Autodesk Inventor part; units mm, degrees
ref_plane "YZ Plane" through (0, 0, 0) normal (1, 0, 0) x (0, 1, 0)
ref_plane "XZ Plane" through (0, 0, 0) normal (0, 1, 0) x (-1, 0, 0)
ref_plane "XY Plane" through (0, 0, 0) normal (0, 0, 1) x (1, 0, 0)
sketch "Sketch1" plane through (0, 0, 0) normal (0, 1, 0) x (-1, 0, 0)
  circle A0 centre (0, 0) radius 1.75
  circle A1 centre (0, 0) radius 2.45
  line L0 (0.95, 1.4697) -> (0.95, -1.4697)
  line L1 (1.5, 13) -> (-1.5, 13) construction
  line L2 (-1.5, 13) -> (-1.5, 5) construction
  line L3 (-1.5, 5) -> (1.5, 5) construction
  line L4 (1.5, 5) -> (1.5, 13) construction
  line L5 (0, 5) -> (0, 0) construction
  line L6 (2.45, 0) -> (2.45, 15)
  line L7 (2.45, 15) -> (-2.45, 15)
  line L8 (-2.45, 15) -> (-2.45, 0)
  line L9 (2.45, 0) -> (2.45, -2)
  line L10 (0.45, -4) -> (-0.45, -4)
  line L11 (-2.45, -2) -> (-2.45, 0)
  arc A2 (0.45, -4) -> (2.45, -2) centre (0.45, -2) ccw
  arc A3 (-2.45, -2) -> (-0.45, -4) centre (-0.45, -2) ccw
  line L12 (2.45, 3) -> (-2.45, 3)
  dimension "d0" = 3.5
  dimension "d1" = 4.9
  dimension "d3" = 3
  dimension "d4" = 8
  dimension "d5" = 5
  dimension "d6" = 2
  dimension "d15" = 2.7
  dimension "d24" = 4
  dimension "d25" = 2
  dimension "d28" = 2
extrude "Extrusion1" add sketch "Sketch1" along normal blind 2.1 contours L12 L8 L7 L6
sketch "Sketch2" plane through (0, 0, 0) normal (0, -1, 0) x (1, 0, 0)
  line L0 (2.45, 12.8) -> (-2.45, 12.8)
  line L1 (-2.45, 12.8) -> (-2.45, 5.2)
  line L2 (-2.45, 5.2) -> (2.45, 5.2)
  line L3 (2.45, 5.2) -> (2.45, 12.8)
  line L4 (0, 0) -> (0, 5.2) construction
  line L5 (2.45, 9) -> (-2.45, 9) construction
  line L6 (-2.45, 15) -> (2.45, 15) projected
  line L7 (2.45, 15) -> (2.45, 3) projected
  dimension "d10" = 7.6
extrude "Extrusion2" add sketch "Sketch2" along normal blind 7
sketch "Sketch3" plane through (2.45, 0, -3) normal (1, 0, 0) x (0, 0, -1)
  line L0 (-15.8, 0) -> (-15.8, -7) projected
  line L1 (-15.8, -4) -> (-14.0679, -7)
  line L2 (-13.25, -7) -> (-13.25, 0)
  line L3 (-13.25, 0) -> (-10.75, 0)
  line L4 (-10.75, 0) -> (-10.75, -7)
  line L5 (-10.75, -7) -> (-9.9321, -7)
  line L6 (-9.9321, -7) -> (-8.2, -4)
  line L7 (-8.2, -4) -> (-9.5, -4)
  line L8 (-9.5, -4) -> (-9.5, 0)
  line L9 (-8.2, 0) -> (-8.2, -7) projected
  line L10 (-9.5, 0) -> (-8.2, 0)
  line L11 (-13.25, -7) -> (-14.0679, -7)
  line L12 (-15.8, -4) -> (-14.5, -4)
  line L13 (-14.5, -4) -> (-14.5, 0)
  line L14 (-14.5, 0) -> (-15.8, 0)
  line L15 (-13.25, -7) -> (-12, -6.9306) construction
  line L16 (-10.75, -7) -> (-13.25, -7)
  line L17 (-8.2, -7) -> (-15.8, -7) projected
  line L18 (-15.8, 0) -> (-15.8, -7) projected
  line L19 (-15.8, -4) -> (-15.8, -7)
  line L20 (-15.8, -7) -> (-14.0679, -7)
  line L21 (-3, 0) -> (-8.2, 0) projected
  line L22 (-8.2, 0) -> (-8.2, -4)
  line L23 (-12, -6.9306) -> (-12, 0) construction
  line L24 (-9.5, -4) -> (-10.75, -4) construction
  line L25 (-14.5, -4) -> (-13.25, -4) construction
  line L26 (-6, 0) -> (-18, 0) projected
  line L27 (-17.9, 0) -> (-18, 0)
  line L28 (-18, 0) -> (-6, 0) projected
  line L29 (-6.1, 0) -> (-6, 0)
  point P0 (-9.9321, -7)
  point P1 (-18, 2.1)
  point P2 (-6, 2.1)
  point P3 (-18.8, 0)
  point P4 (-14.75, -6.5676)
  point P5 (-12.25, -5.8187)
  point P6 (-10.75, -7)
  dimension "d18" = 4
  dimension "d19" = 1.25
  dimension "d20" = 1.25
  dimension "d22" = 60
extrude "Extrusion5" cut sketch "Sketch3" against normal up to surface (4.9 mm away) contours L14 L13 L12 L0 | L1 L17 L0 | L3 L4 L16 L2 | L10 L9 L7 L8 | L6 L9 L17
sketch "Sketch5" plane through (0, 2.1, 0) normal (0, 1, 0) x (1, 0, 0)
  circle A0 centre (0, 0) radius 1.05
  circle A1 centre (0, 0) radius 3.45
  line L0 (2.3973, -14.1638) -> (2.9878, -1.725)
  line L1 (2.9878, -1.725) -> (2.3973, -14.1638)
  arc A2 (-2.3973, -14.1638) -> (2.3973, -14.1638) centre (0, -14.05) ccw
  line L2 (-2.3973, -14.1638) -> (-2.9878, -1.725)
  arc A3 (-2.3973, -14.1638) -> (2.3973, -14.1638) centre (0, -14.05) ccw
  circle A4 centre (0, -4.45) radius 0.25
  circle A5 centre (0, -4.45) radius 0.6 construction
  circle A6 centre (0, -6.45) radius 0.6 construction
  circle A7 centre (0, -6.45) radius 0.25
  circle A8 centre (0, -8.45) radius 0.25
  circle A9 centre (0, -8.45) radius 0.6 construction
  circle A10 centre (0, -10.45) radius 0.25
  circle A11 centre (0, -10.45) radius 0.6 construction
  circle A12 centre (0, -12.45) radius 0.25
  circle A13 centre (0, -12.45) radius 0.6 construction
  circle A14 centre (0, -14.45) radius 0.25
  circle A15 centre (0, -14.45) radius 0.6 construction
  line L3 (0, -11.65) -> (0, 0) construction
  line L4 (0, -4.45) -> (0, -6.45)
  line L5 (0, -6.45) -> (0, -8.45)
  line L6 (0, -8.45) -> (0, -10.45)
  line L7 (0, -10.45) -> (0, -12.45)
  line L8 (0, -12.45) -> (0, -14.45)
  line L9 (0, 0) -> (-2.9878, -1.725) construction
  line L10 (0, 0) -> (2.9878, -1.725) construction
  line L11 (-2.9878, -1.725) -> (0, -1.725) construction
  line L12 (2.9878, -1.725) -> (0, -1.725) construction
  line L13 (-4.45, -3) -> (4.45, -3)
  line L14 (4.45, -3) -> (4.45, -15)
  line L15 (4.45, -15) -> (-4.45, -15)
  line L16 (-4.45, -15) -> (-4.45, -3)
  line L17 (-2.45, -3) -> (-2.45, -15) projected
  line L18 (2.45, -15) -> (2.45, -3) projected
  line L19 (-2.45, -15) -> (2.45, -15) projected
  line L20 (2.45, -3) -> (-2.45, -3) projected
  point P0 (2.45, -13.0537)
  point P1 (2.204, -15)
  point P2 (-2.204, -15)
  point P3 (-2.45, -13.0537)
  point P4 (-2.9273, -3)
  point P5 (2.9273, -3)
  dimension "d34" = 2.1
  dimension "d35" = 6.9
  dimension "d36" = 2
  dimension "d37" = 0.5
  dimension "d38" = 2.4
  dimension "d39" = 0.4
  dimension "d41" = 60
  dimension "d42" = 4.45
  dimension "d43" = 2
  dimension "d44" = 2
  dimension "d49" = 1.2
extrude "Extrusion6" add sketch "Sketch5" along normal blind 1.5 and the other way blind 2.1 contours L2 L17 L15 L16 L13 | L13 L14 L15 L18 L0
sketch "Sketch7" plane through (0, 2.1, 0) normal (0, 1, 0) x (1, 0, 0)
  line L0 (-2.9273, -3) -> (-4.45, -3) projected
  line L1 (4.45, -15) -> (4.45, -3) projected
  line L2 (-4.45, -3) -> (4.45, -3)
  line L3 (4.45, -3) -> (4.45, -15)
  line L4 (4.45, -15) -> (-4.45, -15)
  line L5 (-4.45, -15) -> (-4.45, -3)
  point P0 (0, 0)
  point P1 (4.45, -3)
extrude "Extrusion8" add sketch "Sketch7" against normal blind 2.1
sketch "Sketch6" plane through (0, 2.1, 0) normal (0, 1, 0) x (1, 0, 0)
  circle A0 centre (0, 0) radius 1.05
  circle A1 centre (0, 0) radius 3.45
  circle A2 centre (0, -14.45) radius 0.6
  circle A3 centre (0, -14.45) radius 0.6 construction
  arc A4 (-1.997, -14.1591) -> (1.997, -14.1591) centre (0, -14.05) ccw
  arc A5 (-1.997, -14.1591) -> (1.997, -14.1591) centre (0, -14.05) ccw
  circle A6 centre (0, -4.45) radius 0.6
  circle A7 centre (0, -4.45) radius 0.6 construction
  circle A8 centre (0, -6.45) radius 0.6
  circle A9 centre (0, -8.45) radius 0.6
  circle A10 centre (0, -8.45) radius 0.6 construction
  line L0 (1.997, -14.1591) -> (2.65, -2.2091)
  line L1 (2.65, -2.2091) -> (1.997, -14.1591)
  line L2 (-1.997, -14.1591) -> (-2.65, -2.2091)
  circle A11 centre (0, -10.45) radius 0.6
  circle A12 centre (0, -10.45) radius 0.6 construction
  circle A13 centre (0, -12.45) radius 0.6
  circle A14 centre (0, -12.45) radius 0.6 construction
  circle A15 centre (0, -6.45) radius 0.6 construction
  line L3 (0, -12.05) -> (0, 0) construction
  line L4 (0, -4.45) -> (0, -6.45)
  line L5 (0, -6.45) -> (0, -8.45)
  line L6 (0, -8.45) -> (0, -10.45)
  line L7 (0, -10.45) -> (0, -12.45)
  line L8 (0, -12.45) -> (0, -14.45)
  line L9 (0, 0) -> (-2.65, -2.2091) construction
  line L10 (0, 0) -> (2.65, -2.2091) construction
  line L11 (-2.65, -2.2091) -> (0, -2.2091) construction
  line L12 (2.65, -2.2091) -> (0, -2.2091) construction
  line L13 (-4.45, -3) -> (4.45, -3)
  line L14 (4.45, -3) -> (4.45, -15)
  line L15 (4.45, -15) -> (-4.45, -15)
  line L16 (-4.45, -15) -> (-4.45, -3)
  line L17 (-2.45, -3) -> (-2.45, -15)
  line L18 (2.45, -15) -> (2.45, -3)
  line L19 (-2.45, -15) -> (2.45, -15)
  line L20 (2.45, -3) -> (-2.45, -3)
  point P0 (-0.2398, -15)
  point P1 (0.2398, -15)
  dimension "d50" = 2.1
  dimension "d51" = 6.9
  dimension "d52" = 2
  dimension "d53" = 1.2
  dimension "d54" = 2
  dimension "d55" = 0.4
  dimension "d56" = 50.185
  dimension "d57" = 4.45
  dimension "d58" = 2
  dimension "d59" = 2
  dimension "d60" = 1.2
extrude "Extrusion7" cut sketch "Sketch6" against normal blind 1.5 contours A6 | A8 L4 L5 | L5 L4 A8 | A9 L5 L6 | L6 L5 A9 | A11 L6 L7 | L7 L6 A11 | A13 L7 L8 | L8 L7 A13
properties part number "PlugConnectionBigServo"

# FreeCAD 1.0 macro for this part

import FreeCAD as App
import Part
import Sketcher

V = App.Vector
Q = App.Units.Quantity

doc = App.newDocument("Part")
body = doc.addObject("PartDesign::Body", "Body")

# Sketch on XZ plane
sketch1 = body.newObject("Sketcher::SketchObject", "Sketch")
sketch1.AttachmentSupport = (doc.getObject("XZ_Plane"), [""])
sketch1.MapMode = "FlatFace"
sketch1.addGeometry(Part.LineSegment(V(2.45, 3, 0), V(-2.45, 3, 0)), False)
sketch1.addGeometry(Part.LineSegment(V(-2.45, 3, 0), V(-2.45, 15, 0)), False)
sketch1.addGeometry(Part.LineSegment(V(-2.45, 15, 0), V(2.45, 15, 0)), False)
sketch1.addGeometry(Part.LineSegment(V(2.45, 15, 0), V(2.45, 3, 0)), False)
sketch1.addConstraint(Sketcher.Constraint("Coincident", 0, 2, 1, 1))
sketch1.addConstraint(Sketcher.Constraint("Coincident", 1, 2, 2, 1))
sketch1.addConstraint(Sketcher.Constraint("Coincident", 2, 2, 3, 1))
sketch1.addConstraint(Sketcher.Constraint("Coincident", 3, 2, 0, 1))
sketch1.addConstraint(Sketcher.Constraint("Horizontal", 0))
sketch1.addConstraint(Sketcher.Constraint("Vertical", 1))
sketch1.addConstraint(Sketcher.Constraint("Horizontal", 2))
sketch1.addConstraint(Sketcher.Constraint("Vertical", 3))
sketch1.addConstraint(Sketcher.Constraint("DistanceX", 0, 2, 0, 1, Q("4.9 mm")))
sketch1.addConstraint(Sketcher.Constraint("DistanceY", -1, 1, 0, 2, Q("3 mm")))
sketch1.addConstraint(Sketcher.Constraint("DistanceY", 1, 1, 1, 2, Q("12 mm")))
sketch1.addConstraint(Sketcher.Constraint("DistanceX", 0, 2, -1, 1, Q("2.45 mm")))
pad1 = body.newObject("PartDesign::Pad", "Pad")
pad1.Profile = sketch1
pad1.Length = 2.1
pad1.Reversed = True

# Sketch on XZ plane
sketch2 = body.newObject("Sketcher::SketchObject", "Sketch001")
sketch2.AttachmentSupport = (doc.getObject("XZ_Plane"), [""])
sketch2.MapMode = "FlatFace"
sketch2.addGeometry(Part.LineSegment(V(2.45, 5.2, 0), V(2.45, 12.8, 0)), False)
sketch2.addGeometry(Part.LineSegment(V(2.45, 12.8, 0), V(-2.45, 12.8, 0)), False)
sketch2.addGeometry(Part.LineSegment(V(-2.45, 12.8, 0), V(-2.45, 5.2, 0)), False)
sketch2.addGeometry(Part.LineSegment(V(-2.45, 5.2, 0), V(2.45, 5.2, 0)), False)
sketch2.addConstraint(Sketcher.Constraint("Coincident", 0, 2, 1, 1))
sketch2.addConstraint(Sketcher.Constraint("Coincident", 1, 2, 2, 1))
sketch2.addConstraint(Sketcher.Constraint("Coincident", 2, 2, 3, 1))
sketch2.addConstraint(Sketcher.Constraint("Coincident", 3, 2, 0, 1))
sketch2.addConstraint(Sketcher.Constraint("Vertical", 0))
sketch2.addConstraint(Sketcher.Constraint("Horizontal", 1))
sketch2.addConstraint(Sketcher.Constraint("Vertical", 2))
sketch2.addConstraint(Sketcher.Constraint("Horizontal", 3))
sketch2.addConstraint(Sketcher.Constraint("DistanceY", 0, 1, 0, 2, Q("7.6 mm")))
sketch2.addConstraint(Sketcher.Constraint("DistanceX", 1, 2, 1, 1, Q("4.9 mm")))
sketch2.addConstraint(Sketcher.Constraint("DistanceY", -1, 1, 0, 2, Q("12.8 mm")))
sketch2.addConstraint(Sketcher.Constraint("DistanceX", -1, 1, 0, 2, Q("2.45 mm")))
pad2 = body.newObject("PartDesign::Pad", "Pad001")
pad2.Profile = sketch2
pad2.Length = 7

# Sketch on YZ plane
sketch3 = body.newObject("Sketcher::SketchObject", "Sketch002")
sketch3.AttachmentSupport = (doc.getObject("YZ_Plane"), [""])
sketch3.MapMode = "FlatFace"
sketch3.AttachmentOffset = App.Placement(V(0, 0, 2.45), App.Rotation())
sketch3.addGeometry(Part.LineSegment(V(0, 11.5, 0), V(0, 12.8, 0)), False)
sketch3.addGeometry(Part.LineSegment(V(0, 12.8, 0), V(-4, 12.8, 0)), False)
sketch3.addGeometry(Part.LineSegment(V(-4, 12.8, 0), V(-4, 11.5, 0)), False)
sketch3.addGeometry(Part.LineSegment(V(-4, 11.5, 0), V(0, 11.5, 0)), False)
sketch3.addGeometry(Part.LineSegment(V(-7, 11.0679, 0), V(-4, 12.8, 0)), False)
sketch3.addGeometry(Part.LineSegment(V(-4, 12.8, 0), V(-7, 12.8, 0)), False)
sketch3.addGeometry(Part.LineSegment(V(-7, 12.8, 0), V(-7, 11.0679, 0)), False)
sketch3.addGeometry(Part.LineSegment(V(0, 7.75, 0), V(0, 10.25, 0)), False)
sketch3.addGeometry(Part.LineSegment(V(0, 10.25, 0), V(-7, 10.25, 0)), False)
sketch3.addGeometry(Part.LineSegment(V(-7, 10.25, 0), V(-7, 7.75, 0)), False)
sketch3.addGeometry(Part.LineSegment(V(-7, 7.75, 0), V(0, 7.75, 0)), False)
sketch3.addGeometry(Part.LineSegment(V(0, 5.2, 0), V(0, 6.5, 0)), False)
sketch3.addGeometry(Part.LineSegment(V(0, 6.5, 0), V(-4, 6.5, 0)), False)
sketch3.addGeometry(Part.LineSegment(V(-4, 6.5, 0), V(-4, 5.2, 0)), False)
sketch3.addGeometry(Part.LineSegment(V(-4, 5.2, 0), V(0, 5.2, 0)), False)
sketch3.addGeometry(Part.LineSegment(V(-4, 5.2, 0), V(-7, 6.9321, 0)), False)
sketch3.addGeometry(Part.LineSegment(V(-7, 6.9321, 0), V(-7, 5.2, 0)), False)
sketch3.addGeometry(Part.LineSegment(V(-7, 5.2, 0), V(-4, 5.2, 0)), False)
sketch3.addConstraint(Sketcher.Constraint("Coincident", 0, 2, 1, 1))
sketch3.addConstraint(Sketcher.Constraint("Coincident", 1, 2, 2, 1))
sketch3.addConstraint(Sketcher.Constraint("Coincident", 2, 2, 3, 1))
sketch3.addConstraint(Sketcher.Constraint("Coincident", 3, 2, 0, 1))
sketch3.addConstraint(Sketcher.Constraint("Coincident", 4, 2, 5, 1))
sketch3.addConstraint(Sketcher.Constraint("Coincident", 5, 2, 6, 1))
sketch3.addConstraint(Sketcher.Constraint("Coincident", 6, 2, 4, 1))
sketch3.addConstraint(Sketcher.Constraint("Coincident", 7, 2, 8, 1))
sketch3.addConstraint(Sketcher.Constraint("Coincident", 8, 2, 9, 1))
sketch3.addConstraint(Sketcher.Constraint("Coincident", 9, 2, 10, 1))
sketch3.addConstraint(Sketcher.Constraint("Coincident", 10, 2, 7, 1))
sketch3.addConstraint(Sketcher.Constraint("Coincident", 11, 2, 12, 1))
sketch3.addConstraint(Sketcher.Constraint("Coincident", 12, 2, 13, 1))
sketch3.addConstraint(Sketcher.Constraint("Coincident", 13, 2, 14, 1))
sketch3.addConstraint(Sketcher.Constraint("Coincident", 14, 2, 11, 1))
sketch3.addConstraint(Sketcher.Constraint("Coincident", 15, 2, 16, 1))
sketch3.addConstraint(Sketcher.Constraint("Coincident", 16, 2, 17, 1))
sketch3.addConstraint(Sketcher.Constraint("Coincident", 17, 2, 15, 1))
sketch3.addConstraint(Sketcher.Constraint("Vertical", 0))
sketch3.addConstraint(Sketcher.Constraint("Horizontal", 1))
sketch3.addConstraint(Sketcher.Constraint("Vertical", 2))
sketch3.addConstraint(Sketcher.Constraint("Horizontal", 3))
sketch3.addConstraint(Sketcher.Constraint("Horizontal", 5))
sketch3.addConstraint(Sketcher.Constraint("Vertical", 6))
sketch3.addConstraint(Sketcher.Constraint("Vertical", 7))
sketch3.addConstraint(Sketcher.Constraint("Horizontal", 8))
sketch3.addConstraint(Sketcher.Constraint("Vertical", 9))
sketch3.addConstraint(Sketcher.Constraint("Horizontal", 10))
sketch3.addConstraint(Sketcher.Constraint("Vertical", 11))
sketch3.addConstraint(Sketcher.Constraint("Horizontal", 12))
sketch3.addConstraint(Sketcher.Constraint("Vertical", 13))
sketch3.addConstraint(Sketcher.Constraint("Horizontal", 14))
sketch3.addConstraint(Sketcher.Constraint("Vertical", 16))
sketch3.addConstraint(Sketcher.Constraint("Horizontal", 17))
sketch3.addConstraint(Sketcher.Constraint("Coincident", 4, 2, 1, 2))
sketch3.addConstraint(Sketcher.Constraint("Coincident", 17, 2, 13, 2))
sketch3.addConstraint(Sketcher.Constraint("PointOnObject", 0, 2, -2))
sketch3.addConstraint(Sketcher.Constraint("PointOnObject", 7, 2, -2))
sketch3.addConstraint(Sketcher.Constraint("PointOnObject", 11, 2, -2))
sketch3.addConstraint(Sketcher.Constraint("Vertical", 6, 2, 8, 2))
sketch3.addConstraint(Sketcher.Constraint("Vertical", 4, 2, 12, 2))
sketch3.addConstraint(Sketcher.Constraint("Vertical", 9, 2, 15, 2))
sketch3.addConstraint(Sketcher.Constraint("Equal", 2, 11))
sketch3.addConstraint(Sketcher.Constraint("Equal", 6, 16))
sketch3.addConstraint(Sketcher.Constraint("DistanceX", 1, 2, 1, 1, Q("4 mm")))
sketch3.addConstraint(Sketcher.Constraint("DistanceX", 5, 2, 5, 1, Q("3 mm")))
sketch3.addConstraint(Sketcher.Constraint("Angle", 4, Q("30.0007 deg")))
sketch3.addConstraint(Sketcher.Constraint("DistanceY", 7, 2, 3, 2, Q("1.25 mm")))
sketch3.addConstraint(Sketcher.Constraint("DistanceY", 11, 2, 10, 2, Q("1.25 mm")))
sketch3.addConstraint(Sketcher.Constraint("DistanceY", 0, 1, 0, 2, Q("1.3 mm")))
sketch3.addConstraint(Sketcher.Constraint("DistanceY", 7, 1, 7, 2, Q("2.5 mm")))
sketch3.addConstraint(Sketcher.Constraint("DistanceY", -1, 1, 0, 2, Q("12.8 mm")))
pocket1 = body.newObject("PartDesign::Pocket", "Pocket")
pocket1.Profile = sketch3
pocket1.Length = 4.9

# Sketch on XZ plane
sketch4 = body.newObject("Sketcher::SketchObject", "Sketch003")
sketch4.AttachmentSupport = (doc.getObject("XZ_Plane"), [""])
sketch4.MapMode = "FlatFace"
sketch4.AttachmentOffset = App.Placement(V(0, 0, -2.1), App.Rotation())
sketch4.addGeometry(Part.LineSegment(V(-2.45, 13.053682, 0), V(-2.927273, 3, 0)), False)
sketch4.addGeometry(Part.LineSegment(V(-2.927273, 3, 0), V(-4.45, 3, 0)), False)
sketch4.addGeometry(Part.LineSegment(V(-4.45, 3, 0), V(-4.45, 15, 0)), False)
sketch4.addGeometry(Part.LineSegment(V(-4.45, 15, 0), V(-2.45, 15, 0)), False)
sketch4.addGeometry(Part.LineSegment(V(-2.45, 15, 0), V(-2.45, 13.053682, 0)), False)
sketch4.addGeometry(Part.LineSegment(V(4.45, 3, 0), V(2.927273, 3, 0)), False)
sketch4.addGeometry(Part.LineSegment(V(2.927273, 3, 0), V(2.45, 13.053682, 0)), False)
sketch4.addGeometry(Part.LineSegment(V(2.45, 13.053682, 0), V(2.45, 15, 0)), False)
sketch4.addGeometry(Part.LineSegment(V(2.45, 15, 0), V(4.45, 15, 0)), False)
sketch4.addGeometry(Part.LineSegment(V(4.45, 15, 0), V(4.45, 3, 0)), False)
sketch4.addConstraint(Sketcher.Constraint("Coincident", 0, 2, 1, 1))
sketch4.addConstraint(Sketcher.Constraint("Coincident", 1, 2, 2, 1))
sketch4.addConstraint(Sketcher.Constraint("Coincident", 2, 2, 3, 1))
sketch4.addConstraint(Sketcher.Constraint("Coincident", 3, 2, 4, 1))
sketch4.addConstraint(Sketcher.Constraint("Coincident", 4, 2, 0, 1))
sketch4.addConstraint(Sketcher.Constraint("Coincident", 5, 2, 6, 1))
sketch4.addConstraint(Sketcher.Constraint("Coincident", 6, 2, 7, 1))
sketch4.addConstraint(Sketcher.Constraint("Coincident", 7, 2, 8, 1))
sketch4.addConstraint(Sketcher.Constraint("Coincident", 8, 2, 9, 1))
sketch4.addConstraint(Sketcher.Constraint("Coincident", 9, 2, 5, 1))
sketch4.addConstraint(Sketcher.Constraint("Horizontal", 1))
sketch4.addConstraint(Sketcher.Constraint("Vertical", 2))
sketch4.addConstraint(Sketcher.Constraint("Horizontal", 3))
sketch4.addConstraint(Sketcher.Constraint("Vertical", 4))
sketch4.addConstraint(Sketcher.Constraint("Horizontal", 5))
sketch4.addConstraint(Sketcher.Constraint("Vertical", 7))
sketch4.addConstraint(Sketcher.Constraint("Horizontal", 8))
sketch4.addConstraint(Sketcher.Constraint("Vertical", 9))
sketch4.addConstraint(Sketcher.Constraint("Symmetric", 0, 2, 5, 2, -2))
sketch4.addConstraint(Sketcher.Constraint("Symmetric", 4, 2, 6, 2, -2))
sketch4.addConstraint(Sketcher.Constraint("Symmetric", 2, 2, 8, 2, -2))
sketch4.addConstraint(Sketcher.Constraint("DistanceX", 3, 1, 3, 2, Q("2 mm")))
sketch4.addConstraint(Sketcher.Constraint("DistanceX", 2, 2, 6, 2, Q("6.9 mm")))
sketch4.addConstraint(Sketcher.Constraint("DistanceY", 2, 1, 2, 2, Q("12 mm")))
sketch4.addConstraint(Sketcher.Constraint("DistanceY", -1, 1, 0, 2, Q("3 mm")))
sketch4.addConstraint(Sketcher.Constraint("Distance", 0, Q("10.065 mm")))
sketch4.addConstraint(Sketcher.Constraint("DistanceX", 1, 2, 1, 1, Q("1.5227 mm")))
pad3 = body.newObject("PartDesign::Pad", "Pad002")
pad3.Profile = sketch4
pad3.Type = "TwoLengths"
pad3.Length = 1.5
pad3.Length2 = 2.1
pad3.Reversed = True

# Sketch on XZ plane
sketch5 = body.newObject("Sketcher::SketchObject", "Sketch004")
sketch5.AttachmentSupport = (doc.getObject("XZ_Plane"), [""])
sketch5.MapMode = "FlatFace"
sketch5.AttachmentOffset = App.Placement(V(0, 0, -2.1), App.Rotation())
sketch5.addGeometry(Part.LineSegment(V(4.45, 3, 0), V(-4.45, 3, 0)), False)
sketch5.addGeometry(Part.LineSegment(V(-4.45, 3, 0), V(-4.45, 15, 0)), False)
sketch5.addGeometry(Part.LineSegment(V(-4.45, 15, 0), V(4.45, 15, 0)), False)
sketch5.addGeometry(Part.LineSegment(V(4.45, 15, 0), V(4.45, 3, 0)), False)
sketch5.addConstraint(Sketcher.Constraint("Coincident", 0, 2, 1, 1))
sketch5.addConstraint(Sketcher.Constraint("Coincident", 1, 2, 2, 1))
sketch5.addConstraint(Sketcher.Constraint("Coincident", 2, 2, 3, 1))
sketch5.addConstraint(Sketcher.Constraint("Coincident", 3, 2, 0, 1))
sketch5.addConstraint(Sketcher.Constraint("Horizontal", 0))
sketch5.addConstraint(Sketcher.Constraint("Vertical", 1))
sketch5.addConstraint(Sketcher.Constraint("Horizontal", 2))
sketch5.addConstraint(Sketcher.Constraint("Vertical", 3))
sketch5.addConstraint(Sketcher.Constraint("DistanceY", 1, 1, 1, 2, Q("12 mm")))
sketch5.addConstraint(Sketcher.Constraint("DistanceX", 0, 2, 0, 1, Q("8.9 mm")))
sketch5.addConstraint(Sketcher.Constraint("DistanceY", -1, 1, 0, 2, Q("3 mm")))
sketch5.addConstraint(Sketcher.Constraint("DistanceX", 0, 2, -1, 1, Q("4.45 mm")))
pad4 = body.newObject("PartDesign::Pad", "Pad003")
pad4.Profile = sketch5
pad4.Length = 2.1

# Sketch on XZ plane
sketch6 = body.newObject("Sketcher::SketchObject", "Sketch005")
sketch6.AttachmentSupport = (doc.getObject("XZ_Plane"), [""])
sketch6.MapMode = "FlatFace"
sketch6.AttachmentOffset = App.Placement(V(0, 0, -2.1), App.Rotation())
sketch6.addGeometry(Part.Circle(V(0, 4.45, 0), V(0, 0, 1), 0.6), False)
sketch6.addGeometry(Part.Circle(V(0, 6.45, 0), V(0, 0, 1), 0.6), False)
sketch6.addGeometry(Part.Circle(V(0, 8.45, 0), V(0, 0, 1), 0.6), False)
sketch6.addGeometry(Part.Circle(V(0, 10.45, 0), V(0, 0, 1), 0.6), False)
sketch6.addGeometry(Part.Circle(V(0, 12.45, 0), V(0, 0, 1), 0.6), False)
sketch6.addConstraint(Sketcher.Constraint("Equal", 0, 1))
sketch6.addConstraint(Sketcher.Constraint("Equal", 1, 2))
sketch6.addConstraint(Sketcher.Constraint("Equal", 2, 3))
sketch6.addConstraint(Sketcher.Constraint("Equal", 3, 4))
sketch6.addConstraint(Sketcher.Constraint("PointOnObject", 0, 3, -2))
sketch6.addConstraint(Sketcher.Constraint("PointOnObject", 1, 3, -2))
sketch6.addConstraint(Sketcher.Constraint("PointOnObject", 2, 3, -2))
sketch6.addConstraint(Sketcher.Constraint("PointOnObject", 3, 3, -2))
sketch6.addConstraint(Sketcher.Constraint("PointOnObject", 4, 3, -2))
sketch6.addConstraint(Sketcher.Constraint("Diameter", 0, Q("1.2 mm")))
sketch6.addConstraint(Sketcher.Constraint("DistanceY", 0, 3, 1, 3, Q("2 mm")))
sketch6.addConstraint(Sketcher.Constraint("DistanceY", 1, 3, 2, 3, Q("2 mm")))
sketch6.addConstraint(Sketcher.Constraint("DistanceY", 2, 3, 3, 3, Q("2 mm")))
sketch6.addConstraint(Sketcher.Constraint("DistanceY", 3, 3, 4, 3, Q("2 mm")))
sketch6.addConstraint(Sketcher.Constraint("DistanceY", -1, 1, 0, 3, Q("4.45 mm")))
pocket2 = body.newObject("PartDesign::Pocket", "Pocket001")
pocket2.Profile = sketch6
pocket2.Length = 1.5
pocket2.Reversed = True

doc.recompute()
